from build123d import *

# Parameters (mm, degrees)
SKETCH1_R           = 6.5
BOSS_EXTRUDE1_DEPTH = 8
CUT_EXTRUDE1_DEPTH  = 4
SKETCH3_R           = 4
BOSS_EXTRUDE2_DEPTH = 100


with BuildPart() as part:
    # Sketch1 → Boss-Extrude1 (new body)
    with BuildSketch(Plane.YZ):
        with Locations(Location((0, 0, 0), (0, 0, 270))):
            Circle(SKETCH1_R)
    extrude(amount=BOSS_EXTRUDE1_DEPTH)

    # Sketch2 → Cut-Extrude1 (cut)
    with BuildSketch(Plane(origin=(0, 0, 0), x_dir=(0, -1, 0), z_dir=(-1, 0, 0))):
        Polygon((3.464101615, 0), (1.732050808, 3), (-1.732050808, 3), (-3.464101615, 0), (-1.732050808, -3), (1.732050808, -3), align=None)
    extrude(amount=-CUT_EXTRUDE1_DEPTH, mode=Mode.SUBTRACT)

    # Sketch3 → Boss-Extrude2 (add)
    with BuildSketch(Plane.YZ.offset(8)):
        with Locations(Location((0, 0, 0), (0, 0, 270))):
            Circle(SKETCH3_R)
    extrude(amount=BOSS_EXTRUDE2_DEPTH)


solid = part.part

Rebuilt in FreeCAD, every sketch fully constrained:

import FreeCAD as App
import Part
import Sketcher
from FreeCAD import Vector
Q = App.Units.Quantity


def add_polygon(sketch, points):
    """Adds a closed chain of lines whose ends are joined by coincident constraints."""
    first, n = sketch.GeometryCount, len(points)
    for a, b in zip(points, points[1:] + points[:1]):
        sketch.addGeometry(Part.LineSegment(App.Vector(*a, 0), App.Vector(*b, 0)), False)
    for i in range(n):
        sketch.addConstraint(Sketcher.Constraint("Coincident", first + i, 2, first + (i + 1) % n, 1))

doc = App.newDocument("Part")
body = doc.addObject("PartDesign::Body", "Body")

# Sketch on YZ plane
sketch1 = doc.addObject("Sketcher::SketchObject", "Sketch")
body.addObject(sketch1)
sketch1.AttachmentSupport = (doc.YZ_Plane, [""])
sketch1.MapMode = "FlatFace"
sketch1.addGeometry(Part.Circle(Vector(0, 0, 0), Vector(0, 0, 1), 6.5), False)
sketch1.addConstraint([
    Sketcher.Constraint("Coincident", 0, 3, -1, 1),
    Sketcher.Constraint("Diameter", 0, Q("13 mm")),
])
pad1 = doc.addObject("PartDesign::Pad", "Pad")
body.addObject(pad1)
pad1.Profile = sketch1
pad1.Length = 8

# Sketch on YZ plane
sketch2 = doc.addObject("Sketcher::SketchObject", "Sketch001")
body.addObject(sketch2)
sketch2.AttachmentSupport = (doc.YZ_Plane, [""])
sketch2.MapMode = "FlatFace"
add_polygon(sketch2, [(-3.464102, 0), (-1.732051, 3), (1.732051, 3), (3.464102, 0), (1.732051, -3), (-1.732051, -3)])  # lines 0-5
sketch2.addConstraint([
    Sketcher.Constraint("Horizontal", 1),
    Sketcher.Constraint("Horizontal", 4),
    Sketcher.Constraint("Symmetric", 0, 2, 3, 2, -1, 1),
    Sketcher.Constraint("Symmetric", 2, 2, 5, 2, -1, 1),
    Sketcher.Constraint("PointOnObject", 2, 2, -1),
    Sketcher.Constraint("Parallel", 2, 5),
    Sketcher.Constraint("Vertical", 1, 2, 3, 2),
    Sketcher.Constraint("Angle", 0, Q("60 deg")),
    Sketcher.Constraint("DistanceY", -1, 1, 0, 2, Q("3 mm")),
    Sketcher.Constraint("DistanceX", 1, 1, 1, 2, Q("3.464102 mm")),
])
pocket1 = doc.addObject("PartDesign::Pocket", "Pocket")
body.addObject(pocket1)
pocket1.Profile = sketch2
pocket1.Length = 4
pocket1.Reversed = True

# Sketch on YZ plane
sketch3 = doc.addObject("Sketcher::SketchObject", "Sketch002")
body.addObject(sketch3)
sketch3.AttachmentSupport = (doc.YZ_Plane, [""])
sketch3.MapMode = "FlatFace"
sketch3.AttachmentOffset = App.Placement(Vector(0, 0, 8), App.Rotation())
sketch3.addGeometry(Part.Circle(Vector(0, 0, 0), Vector(0, 0, 1), 4), False)
sketch3.addConstraint([
    Sketcher.Constraint("Coincident", 0, 3, -1, 1),
    Sketcher.Constraint("Diameter", 0, Q("8 mm")),
])
pad2 = doc.addObject("PartDesign::Pad", "Pad001")
body.addObject(pad2)
pad2.Profile = sketch3
pad2.Length = 100

doc.recompute()
